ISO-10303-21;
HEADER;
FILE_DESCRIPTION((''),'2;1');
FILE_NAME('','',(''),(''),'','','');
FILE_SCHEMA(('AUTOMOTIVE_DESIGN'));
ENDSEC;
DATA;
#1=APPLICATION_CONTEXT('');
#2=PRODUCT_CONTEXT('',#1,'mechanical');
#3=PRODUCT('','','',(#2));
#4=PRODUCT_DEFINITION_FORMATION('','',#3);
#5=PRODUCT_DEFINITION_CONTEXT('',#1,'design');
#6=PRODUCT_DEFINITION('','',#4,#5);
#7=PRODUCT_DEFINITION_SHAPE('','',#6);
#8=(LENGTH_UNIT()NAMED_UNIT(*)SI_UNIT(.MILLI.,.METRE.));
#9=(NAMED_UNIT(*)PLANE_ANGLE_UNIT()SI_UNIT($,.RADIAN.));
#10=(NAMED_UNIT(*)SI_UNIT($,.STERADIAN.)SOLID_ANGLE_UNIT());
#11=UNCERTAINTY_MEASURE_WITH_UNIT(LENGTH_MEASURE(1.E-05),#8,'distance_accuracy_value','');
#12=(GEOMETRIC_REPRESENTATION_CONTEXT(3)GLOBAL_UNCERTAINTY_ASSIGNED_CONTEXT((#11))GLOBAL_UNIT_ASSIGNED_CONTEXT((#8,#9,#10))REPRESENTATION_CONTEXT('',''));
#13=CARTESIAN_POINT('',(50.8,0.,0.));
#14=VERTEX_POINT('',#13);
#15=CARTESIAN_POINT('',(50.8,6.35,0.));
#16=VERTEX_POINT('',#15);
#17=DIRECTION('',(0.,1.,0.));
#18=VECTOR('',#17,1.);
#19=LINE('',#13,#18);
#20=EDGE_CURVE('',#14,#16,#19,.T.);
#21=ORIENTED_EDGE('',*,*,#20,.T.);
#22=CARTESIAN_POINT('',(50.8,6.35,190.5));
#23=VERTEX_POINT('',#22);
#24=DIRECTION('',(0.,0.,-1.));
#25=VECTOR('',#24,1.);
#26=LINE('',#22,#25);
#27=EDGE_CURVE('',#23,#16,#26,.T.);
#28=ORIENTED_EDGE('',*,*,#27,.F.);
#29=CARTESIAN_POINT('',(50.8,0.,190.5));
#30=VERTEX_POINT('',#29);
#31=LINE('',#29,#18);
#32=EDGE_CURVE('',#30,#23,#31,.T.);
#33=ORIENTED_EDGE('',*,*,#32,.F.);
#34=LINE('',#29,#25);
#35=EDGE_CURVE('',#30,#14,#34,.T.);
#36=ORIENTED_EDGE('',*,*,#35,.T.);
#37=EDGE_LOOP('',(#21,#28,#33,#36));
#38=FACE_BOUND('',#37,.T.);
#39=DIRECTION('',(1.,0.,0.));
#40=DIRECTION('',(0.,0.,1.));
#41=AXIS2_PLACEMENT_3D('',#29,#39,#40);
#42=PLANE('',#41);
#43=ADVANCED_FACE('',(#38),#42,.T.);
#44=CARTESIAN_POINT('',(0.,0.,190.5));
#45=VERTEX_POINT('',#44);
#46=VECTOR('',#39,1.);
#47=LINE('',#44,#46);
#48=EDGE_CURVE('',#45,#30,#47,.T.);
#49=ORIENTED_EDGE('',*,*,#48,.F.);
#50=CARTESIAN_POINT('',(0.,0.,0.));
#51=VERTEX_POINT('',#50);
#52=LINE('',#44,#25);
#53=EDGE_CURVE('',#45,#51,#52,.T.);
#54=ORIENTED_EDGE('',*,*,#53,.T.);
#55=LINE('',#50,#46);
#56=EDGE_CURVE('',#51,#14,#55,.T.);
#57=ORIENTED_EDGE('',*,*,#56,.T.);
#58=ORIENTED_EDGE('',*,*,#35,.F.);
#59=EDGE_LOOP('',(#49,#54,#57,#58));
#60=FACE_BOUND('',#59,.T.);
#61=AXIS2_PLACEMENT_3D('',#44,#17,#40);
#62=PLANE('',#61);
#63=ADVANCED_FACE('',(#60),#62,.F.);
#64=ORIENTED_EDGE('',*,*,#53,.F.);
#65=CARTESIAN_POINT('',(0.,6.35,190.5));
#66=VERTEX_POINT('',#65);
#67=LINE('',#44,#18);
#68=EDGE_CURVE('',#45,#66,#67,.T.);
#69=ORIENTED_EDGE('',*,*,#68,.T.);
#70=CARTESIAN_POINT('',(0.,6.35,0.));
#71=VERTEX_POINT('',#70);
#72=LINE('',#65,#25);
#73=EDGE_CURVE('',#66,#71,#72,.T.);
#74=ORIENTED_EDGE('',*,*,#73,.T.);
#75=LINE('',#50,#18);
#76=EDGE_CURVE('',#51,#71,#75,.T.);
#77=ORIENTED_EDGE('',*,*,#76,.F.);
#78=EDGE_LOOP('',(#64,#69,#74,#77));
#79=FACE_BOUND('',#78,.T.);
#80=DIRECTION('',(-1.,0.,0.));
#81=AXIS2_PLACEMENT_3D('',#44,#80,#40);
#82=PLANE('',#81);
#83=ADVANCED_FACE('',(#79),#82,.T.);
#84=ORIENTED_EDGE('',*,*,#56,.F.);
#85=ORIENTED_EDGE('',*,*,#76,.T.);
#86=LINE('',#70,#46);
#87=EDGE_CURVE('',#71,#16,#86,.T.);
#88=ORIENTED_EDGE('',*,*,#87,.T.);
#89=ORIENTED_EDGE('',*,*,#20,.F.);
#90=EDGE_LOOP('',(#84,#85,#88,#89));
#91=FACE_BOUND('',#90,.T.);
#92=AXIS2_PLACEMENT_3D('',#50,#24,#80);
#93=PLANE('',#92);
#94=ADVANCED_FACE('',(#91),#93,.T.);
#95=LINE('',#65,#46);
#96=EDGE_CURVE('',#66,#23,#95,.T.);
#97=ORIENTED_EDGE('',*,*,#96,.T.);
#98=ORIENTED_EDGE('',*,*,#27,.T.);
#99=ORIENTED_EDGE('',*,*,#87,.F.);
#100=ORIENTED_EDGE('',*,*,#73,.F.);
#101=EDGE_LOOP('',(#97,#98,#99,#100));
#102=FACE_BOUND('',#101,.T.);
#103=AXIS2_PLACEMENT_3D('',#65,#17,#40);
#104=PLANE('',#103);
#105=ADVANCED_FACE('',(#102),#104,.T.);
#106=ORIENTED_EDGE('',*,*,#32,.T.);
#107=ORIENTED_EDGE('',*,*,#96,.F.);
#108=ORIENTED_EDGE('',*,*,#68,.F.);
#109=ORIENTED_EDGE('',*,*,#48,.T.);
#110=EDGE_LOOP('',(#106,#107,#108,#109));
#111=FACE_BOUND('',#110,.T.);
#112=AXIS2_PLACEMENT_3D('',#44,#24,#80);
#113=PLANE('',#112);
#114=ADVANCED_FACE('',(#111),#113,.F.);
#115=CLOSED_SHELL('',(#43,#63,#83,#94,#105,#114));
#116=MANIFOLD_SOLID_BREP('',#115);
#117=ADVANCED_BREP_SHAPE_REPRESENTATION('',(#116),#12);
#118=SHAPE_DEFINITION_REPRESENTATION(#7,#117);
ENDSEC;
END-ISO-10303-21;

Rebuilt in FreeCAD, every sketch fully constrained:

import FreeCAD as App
import Part
import Sketcher

V = App.Vector
Q = App.Units.Quantity


def add_polygon(sketch, points):
    """Adds a closed chain of lines whose ends are joined by coincident constraints."""
    first, n = sketch.GeometryCount, len(points)
    for a, b in zip(points, points[1:] + points[:1]):
        sketch.addGeometry(Part.LineSegment(App.Vector(*a, 0), App.Vector(*b, 0)), False)
    for i in range(n):
        sketch.addConstraint(Sketcher.Constraint("Coincident", first + i, 2, first + (i + 1) % n, 1))

doc = App.newDocument("Part")
body = doc.addObject("PartDesign::Body", "Body")

# Sketch on XY plane
sketch1 = body.newObject("Sketcher::SketchObject", "Sketch")
sketch1.AttachmentSupport = (doc.getObject("XY_Plane"), [""])
sketch1.MapMode = "FlatFace"
add_polygon(sketch1, [(0, 6), (0, 0), (25, 0), (25, 6)])  # lines 0-3
sketch1.addConstraint(Sketcher.Constraint("Vertical", 0))
sketch1.addConstraint(Sketcher.Constraint("Horizontal", 1))
sketch1.addConstraint(Sketcher.Constraint("Vertical", 2))
sketch1.addConstraint(Sketcher.Constraint("Horizontal", 3))
sketch1.addConstraint(Sketcher.Constraint("Coincident", 0, 2, -1, 1))
sketch1.addConstraint(Sketcher.Constraint("DistanceX", 1, 1, 1, 2, Q("1 in")))
sketch1.addConstraint(Sketcher.Constraint("DistanceY", 0, 2, 0, 1, Q("0.25 in")))
pad1 = body.newObject("PartDesign::Pad", "Pad")
pad1.Profile = sketch1
pad1.Length = Q("7.5 in")
body2 = doc.addObject("PartDesign::Body", "Body001")
doc.recompute()

body2.BaseFeature = body
doc.recompute()

mirroring = doc.addObject("Part::Mirroring", "Mirroring")
mirroring.Source = body
mirroring.Base = V(25.4, 0, 190.5)
mirroring.Normal = V(-1, 0, 0)
body3 = doc.addObject("PartDesign::Body", "Body002")
body3.BaseFeature = mirroring
boolean = body2.newObject("PartDesign::Boolean", "Boolean")
boolean.Type = "Fuse"
boolean.addObjects([body3])
doc.recompute()
mirroring.Visibility = False

doc.recompute()
